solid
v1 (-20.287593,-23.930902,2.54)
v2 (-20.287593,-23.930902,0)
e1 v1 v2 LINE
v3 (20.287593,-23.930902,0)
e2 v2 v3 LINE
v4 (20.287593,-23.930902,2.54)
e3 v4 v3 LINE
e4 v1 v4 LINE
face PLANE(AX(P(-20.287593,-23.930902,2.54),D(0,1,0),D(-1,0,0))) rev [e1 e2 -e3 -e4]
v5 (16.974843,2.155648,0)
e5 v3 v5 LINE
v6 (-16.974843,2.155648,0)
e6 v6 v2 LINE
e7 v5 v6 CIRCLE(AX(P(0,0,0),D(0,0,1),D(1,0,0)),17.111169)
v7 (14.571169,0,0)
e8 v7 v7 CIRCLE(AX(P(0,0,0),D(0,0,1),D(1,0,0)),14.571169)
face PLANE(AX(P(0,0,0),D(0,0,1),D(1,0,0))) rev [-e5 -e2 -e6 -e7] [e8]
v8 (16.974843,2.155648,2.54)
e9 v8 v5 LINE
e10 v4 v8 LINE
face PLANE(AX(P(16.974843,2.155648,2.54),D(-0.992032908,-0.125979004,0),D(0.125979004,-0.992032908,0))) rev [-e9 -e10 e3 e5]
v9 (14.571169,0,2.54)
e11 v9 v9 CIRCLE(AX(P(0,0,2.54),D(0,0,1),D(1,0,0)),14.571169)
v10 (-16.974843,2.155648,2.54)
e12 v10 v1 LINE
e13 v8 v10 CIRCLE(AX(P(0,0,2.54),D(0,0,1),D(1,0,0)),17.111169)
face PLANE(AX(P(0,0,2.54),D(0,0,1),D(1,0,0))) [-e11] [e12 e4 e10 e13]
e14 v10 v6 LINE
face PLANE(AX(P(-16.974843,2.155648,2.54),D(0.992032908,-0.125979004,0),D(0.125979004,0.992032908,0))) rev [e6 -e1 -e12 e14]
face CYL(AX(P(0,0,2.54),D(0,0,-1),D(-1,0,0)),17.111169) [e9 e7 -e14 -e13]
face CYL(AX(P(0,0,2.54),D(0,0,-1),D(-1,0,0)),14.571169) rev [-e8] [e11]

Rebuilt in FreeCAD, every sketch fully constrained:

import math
import FreeCAD as App
import Part
import Sketcher

V = App.Vector

doc = App.newDocument("Part")
params = doc.addObject("Spreadsheet::Sheet", "Params")
for row, (alias, value) in enumerate([
    ("pad1_length", "0.1 in"),
], start=1):
    params.set(f"A{row}", alias)
    params.set(f"B{row}", "=" + value)
    params.setAlias(f"B{row}", alias)

body = doc.addObject("PartDesign::Body", "Body")

# Sketch on XY plane
sketch1 = body.newObject("Sketcher::SketchObject", "Sketch")
sketch1.AttachmentSupport = (doc.getObject("XY_Plane"), [""])
sketch1.MapMode = "FlatFace"
sketch1.addGeometry([
    Part.LineSegment(V(-17, 2, 0), V(-20, -24, 0)),  # 0
    Part.LineSegment(V(-20, -24, 0), V(20, -24, 0)),  # 1
    Part.LineSegment(V(20, -24, 0), V(17, 2, 0)),  # 2
    Part.ArcOfCircle(Part.Circle(V(0, 0, 0), V(0, 0, 1), 17), math.radians(7), math.radians(173)),  # 3
    Part.Circle(V(0, 0, 0), V(0, 0, 1), 15),  # 4
], False)
sketch1.addConstraint([
    Sketcher.Constraint("Coincident", 0, 2, 1, 1),
    Sketcher.Constraint("Coincident", 1, 2, 2, 1),
    Sketcher.Constraint("Tangent", 2, 2, 3, 1),
    Sketcher.Constraint("Tangent", 3, 2, 0, 1),
    Sketcher.Constraint("Horizontal", 1),
    Sketcher.Constraint("Coincident", 3, 3, -1, 1),
    Sketcher.Constraint("Coincident", 4, 3, -1, 1),
    Sketcher.Constraint("Horizontal", 2, 2, 3, 2),
    Sketcher.Constraint("Diameter", 4, 29.142338),
    Sketcher.Constraint("Radius", 3, 17.111169),
    Sketcher.Constraint("DistanceY", 0, 2, -1, 1, 23.930902),
    Sketcher.Constraint("DistanceX", 1, 1, 1, 2, 40.575187),
])
pad1 = body.newObject("PartDesign::Pad", "Pad")
pad1.Profile = sketch1
pad1.setExpression("Length", "Params.pad1_length")

doc.recompute()
